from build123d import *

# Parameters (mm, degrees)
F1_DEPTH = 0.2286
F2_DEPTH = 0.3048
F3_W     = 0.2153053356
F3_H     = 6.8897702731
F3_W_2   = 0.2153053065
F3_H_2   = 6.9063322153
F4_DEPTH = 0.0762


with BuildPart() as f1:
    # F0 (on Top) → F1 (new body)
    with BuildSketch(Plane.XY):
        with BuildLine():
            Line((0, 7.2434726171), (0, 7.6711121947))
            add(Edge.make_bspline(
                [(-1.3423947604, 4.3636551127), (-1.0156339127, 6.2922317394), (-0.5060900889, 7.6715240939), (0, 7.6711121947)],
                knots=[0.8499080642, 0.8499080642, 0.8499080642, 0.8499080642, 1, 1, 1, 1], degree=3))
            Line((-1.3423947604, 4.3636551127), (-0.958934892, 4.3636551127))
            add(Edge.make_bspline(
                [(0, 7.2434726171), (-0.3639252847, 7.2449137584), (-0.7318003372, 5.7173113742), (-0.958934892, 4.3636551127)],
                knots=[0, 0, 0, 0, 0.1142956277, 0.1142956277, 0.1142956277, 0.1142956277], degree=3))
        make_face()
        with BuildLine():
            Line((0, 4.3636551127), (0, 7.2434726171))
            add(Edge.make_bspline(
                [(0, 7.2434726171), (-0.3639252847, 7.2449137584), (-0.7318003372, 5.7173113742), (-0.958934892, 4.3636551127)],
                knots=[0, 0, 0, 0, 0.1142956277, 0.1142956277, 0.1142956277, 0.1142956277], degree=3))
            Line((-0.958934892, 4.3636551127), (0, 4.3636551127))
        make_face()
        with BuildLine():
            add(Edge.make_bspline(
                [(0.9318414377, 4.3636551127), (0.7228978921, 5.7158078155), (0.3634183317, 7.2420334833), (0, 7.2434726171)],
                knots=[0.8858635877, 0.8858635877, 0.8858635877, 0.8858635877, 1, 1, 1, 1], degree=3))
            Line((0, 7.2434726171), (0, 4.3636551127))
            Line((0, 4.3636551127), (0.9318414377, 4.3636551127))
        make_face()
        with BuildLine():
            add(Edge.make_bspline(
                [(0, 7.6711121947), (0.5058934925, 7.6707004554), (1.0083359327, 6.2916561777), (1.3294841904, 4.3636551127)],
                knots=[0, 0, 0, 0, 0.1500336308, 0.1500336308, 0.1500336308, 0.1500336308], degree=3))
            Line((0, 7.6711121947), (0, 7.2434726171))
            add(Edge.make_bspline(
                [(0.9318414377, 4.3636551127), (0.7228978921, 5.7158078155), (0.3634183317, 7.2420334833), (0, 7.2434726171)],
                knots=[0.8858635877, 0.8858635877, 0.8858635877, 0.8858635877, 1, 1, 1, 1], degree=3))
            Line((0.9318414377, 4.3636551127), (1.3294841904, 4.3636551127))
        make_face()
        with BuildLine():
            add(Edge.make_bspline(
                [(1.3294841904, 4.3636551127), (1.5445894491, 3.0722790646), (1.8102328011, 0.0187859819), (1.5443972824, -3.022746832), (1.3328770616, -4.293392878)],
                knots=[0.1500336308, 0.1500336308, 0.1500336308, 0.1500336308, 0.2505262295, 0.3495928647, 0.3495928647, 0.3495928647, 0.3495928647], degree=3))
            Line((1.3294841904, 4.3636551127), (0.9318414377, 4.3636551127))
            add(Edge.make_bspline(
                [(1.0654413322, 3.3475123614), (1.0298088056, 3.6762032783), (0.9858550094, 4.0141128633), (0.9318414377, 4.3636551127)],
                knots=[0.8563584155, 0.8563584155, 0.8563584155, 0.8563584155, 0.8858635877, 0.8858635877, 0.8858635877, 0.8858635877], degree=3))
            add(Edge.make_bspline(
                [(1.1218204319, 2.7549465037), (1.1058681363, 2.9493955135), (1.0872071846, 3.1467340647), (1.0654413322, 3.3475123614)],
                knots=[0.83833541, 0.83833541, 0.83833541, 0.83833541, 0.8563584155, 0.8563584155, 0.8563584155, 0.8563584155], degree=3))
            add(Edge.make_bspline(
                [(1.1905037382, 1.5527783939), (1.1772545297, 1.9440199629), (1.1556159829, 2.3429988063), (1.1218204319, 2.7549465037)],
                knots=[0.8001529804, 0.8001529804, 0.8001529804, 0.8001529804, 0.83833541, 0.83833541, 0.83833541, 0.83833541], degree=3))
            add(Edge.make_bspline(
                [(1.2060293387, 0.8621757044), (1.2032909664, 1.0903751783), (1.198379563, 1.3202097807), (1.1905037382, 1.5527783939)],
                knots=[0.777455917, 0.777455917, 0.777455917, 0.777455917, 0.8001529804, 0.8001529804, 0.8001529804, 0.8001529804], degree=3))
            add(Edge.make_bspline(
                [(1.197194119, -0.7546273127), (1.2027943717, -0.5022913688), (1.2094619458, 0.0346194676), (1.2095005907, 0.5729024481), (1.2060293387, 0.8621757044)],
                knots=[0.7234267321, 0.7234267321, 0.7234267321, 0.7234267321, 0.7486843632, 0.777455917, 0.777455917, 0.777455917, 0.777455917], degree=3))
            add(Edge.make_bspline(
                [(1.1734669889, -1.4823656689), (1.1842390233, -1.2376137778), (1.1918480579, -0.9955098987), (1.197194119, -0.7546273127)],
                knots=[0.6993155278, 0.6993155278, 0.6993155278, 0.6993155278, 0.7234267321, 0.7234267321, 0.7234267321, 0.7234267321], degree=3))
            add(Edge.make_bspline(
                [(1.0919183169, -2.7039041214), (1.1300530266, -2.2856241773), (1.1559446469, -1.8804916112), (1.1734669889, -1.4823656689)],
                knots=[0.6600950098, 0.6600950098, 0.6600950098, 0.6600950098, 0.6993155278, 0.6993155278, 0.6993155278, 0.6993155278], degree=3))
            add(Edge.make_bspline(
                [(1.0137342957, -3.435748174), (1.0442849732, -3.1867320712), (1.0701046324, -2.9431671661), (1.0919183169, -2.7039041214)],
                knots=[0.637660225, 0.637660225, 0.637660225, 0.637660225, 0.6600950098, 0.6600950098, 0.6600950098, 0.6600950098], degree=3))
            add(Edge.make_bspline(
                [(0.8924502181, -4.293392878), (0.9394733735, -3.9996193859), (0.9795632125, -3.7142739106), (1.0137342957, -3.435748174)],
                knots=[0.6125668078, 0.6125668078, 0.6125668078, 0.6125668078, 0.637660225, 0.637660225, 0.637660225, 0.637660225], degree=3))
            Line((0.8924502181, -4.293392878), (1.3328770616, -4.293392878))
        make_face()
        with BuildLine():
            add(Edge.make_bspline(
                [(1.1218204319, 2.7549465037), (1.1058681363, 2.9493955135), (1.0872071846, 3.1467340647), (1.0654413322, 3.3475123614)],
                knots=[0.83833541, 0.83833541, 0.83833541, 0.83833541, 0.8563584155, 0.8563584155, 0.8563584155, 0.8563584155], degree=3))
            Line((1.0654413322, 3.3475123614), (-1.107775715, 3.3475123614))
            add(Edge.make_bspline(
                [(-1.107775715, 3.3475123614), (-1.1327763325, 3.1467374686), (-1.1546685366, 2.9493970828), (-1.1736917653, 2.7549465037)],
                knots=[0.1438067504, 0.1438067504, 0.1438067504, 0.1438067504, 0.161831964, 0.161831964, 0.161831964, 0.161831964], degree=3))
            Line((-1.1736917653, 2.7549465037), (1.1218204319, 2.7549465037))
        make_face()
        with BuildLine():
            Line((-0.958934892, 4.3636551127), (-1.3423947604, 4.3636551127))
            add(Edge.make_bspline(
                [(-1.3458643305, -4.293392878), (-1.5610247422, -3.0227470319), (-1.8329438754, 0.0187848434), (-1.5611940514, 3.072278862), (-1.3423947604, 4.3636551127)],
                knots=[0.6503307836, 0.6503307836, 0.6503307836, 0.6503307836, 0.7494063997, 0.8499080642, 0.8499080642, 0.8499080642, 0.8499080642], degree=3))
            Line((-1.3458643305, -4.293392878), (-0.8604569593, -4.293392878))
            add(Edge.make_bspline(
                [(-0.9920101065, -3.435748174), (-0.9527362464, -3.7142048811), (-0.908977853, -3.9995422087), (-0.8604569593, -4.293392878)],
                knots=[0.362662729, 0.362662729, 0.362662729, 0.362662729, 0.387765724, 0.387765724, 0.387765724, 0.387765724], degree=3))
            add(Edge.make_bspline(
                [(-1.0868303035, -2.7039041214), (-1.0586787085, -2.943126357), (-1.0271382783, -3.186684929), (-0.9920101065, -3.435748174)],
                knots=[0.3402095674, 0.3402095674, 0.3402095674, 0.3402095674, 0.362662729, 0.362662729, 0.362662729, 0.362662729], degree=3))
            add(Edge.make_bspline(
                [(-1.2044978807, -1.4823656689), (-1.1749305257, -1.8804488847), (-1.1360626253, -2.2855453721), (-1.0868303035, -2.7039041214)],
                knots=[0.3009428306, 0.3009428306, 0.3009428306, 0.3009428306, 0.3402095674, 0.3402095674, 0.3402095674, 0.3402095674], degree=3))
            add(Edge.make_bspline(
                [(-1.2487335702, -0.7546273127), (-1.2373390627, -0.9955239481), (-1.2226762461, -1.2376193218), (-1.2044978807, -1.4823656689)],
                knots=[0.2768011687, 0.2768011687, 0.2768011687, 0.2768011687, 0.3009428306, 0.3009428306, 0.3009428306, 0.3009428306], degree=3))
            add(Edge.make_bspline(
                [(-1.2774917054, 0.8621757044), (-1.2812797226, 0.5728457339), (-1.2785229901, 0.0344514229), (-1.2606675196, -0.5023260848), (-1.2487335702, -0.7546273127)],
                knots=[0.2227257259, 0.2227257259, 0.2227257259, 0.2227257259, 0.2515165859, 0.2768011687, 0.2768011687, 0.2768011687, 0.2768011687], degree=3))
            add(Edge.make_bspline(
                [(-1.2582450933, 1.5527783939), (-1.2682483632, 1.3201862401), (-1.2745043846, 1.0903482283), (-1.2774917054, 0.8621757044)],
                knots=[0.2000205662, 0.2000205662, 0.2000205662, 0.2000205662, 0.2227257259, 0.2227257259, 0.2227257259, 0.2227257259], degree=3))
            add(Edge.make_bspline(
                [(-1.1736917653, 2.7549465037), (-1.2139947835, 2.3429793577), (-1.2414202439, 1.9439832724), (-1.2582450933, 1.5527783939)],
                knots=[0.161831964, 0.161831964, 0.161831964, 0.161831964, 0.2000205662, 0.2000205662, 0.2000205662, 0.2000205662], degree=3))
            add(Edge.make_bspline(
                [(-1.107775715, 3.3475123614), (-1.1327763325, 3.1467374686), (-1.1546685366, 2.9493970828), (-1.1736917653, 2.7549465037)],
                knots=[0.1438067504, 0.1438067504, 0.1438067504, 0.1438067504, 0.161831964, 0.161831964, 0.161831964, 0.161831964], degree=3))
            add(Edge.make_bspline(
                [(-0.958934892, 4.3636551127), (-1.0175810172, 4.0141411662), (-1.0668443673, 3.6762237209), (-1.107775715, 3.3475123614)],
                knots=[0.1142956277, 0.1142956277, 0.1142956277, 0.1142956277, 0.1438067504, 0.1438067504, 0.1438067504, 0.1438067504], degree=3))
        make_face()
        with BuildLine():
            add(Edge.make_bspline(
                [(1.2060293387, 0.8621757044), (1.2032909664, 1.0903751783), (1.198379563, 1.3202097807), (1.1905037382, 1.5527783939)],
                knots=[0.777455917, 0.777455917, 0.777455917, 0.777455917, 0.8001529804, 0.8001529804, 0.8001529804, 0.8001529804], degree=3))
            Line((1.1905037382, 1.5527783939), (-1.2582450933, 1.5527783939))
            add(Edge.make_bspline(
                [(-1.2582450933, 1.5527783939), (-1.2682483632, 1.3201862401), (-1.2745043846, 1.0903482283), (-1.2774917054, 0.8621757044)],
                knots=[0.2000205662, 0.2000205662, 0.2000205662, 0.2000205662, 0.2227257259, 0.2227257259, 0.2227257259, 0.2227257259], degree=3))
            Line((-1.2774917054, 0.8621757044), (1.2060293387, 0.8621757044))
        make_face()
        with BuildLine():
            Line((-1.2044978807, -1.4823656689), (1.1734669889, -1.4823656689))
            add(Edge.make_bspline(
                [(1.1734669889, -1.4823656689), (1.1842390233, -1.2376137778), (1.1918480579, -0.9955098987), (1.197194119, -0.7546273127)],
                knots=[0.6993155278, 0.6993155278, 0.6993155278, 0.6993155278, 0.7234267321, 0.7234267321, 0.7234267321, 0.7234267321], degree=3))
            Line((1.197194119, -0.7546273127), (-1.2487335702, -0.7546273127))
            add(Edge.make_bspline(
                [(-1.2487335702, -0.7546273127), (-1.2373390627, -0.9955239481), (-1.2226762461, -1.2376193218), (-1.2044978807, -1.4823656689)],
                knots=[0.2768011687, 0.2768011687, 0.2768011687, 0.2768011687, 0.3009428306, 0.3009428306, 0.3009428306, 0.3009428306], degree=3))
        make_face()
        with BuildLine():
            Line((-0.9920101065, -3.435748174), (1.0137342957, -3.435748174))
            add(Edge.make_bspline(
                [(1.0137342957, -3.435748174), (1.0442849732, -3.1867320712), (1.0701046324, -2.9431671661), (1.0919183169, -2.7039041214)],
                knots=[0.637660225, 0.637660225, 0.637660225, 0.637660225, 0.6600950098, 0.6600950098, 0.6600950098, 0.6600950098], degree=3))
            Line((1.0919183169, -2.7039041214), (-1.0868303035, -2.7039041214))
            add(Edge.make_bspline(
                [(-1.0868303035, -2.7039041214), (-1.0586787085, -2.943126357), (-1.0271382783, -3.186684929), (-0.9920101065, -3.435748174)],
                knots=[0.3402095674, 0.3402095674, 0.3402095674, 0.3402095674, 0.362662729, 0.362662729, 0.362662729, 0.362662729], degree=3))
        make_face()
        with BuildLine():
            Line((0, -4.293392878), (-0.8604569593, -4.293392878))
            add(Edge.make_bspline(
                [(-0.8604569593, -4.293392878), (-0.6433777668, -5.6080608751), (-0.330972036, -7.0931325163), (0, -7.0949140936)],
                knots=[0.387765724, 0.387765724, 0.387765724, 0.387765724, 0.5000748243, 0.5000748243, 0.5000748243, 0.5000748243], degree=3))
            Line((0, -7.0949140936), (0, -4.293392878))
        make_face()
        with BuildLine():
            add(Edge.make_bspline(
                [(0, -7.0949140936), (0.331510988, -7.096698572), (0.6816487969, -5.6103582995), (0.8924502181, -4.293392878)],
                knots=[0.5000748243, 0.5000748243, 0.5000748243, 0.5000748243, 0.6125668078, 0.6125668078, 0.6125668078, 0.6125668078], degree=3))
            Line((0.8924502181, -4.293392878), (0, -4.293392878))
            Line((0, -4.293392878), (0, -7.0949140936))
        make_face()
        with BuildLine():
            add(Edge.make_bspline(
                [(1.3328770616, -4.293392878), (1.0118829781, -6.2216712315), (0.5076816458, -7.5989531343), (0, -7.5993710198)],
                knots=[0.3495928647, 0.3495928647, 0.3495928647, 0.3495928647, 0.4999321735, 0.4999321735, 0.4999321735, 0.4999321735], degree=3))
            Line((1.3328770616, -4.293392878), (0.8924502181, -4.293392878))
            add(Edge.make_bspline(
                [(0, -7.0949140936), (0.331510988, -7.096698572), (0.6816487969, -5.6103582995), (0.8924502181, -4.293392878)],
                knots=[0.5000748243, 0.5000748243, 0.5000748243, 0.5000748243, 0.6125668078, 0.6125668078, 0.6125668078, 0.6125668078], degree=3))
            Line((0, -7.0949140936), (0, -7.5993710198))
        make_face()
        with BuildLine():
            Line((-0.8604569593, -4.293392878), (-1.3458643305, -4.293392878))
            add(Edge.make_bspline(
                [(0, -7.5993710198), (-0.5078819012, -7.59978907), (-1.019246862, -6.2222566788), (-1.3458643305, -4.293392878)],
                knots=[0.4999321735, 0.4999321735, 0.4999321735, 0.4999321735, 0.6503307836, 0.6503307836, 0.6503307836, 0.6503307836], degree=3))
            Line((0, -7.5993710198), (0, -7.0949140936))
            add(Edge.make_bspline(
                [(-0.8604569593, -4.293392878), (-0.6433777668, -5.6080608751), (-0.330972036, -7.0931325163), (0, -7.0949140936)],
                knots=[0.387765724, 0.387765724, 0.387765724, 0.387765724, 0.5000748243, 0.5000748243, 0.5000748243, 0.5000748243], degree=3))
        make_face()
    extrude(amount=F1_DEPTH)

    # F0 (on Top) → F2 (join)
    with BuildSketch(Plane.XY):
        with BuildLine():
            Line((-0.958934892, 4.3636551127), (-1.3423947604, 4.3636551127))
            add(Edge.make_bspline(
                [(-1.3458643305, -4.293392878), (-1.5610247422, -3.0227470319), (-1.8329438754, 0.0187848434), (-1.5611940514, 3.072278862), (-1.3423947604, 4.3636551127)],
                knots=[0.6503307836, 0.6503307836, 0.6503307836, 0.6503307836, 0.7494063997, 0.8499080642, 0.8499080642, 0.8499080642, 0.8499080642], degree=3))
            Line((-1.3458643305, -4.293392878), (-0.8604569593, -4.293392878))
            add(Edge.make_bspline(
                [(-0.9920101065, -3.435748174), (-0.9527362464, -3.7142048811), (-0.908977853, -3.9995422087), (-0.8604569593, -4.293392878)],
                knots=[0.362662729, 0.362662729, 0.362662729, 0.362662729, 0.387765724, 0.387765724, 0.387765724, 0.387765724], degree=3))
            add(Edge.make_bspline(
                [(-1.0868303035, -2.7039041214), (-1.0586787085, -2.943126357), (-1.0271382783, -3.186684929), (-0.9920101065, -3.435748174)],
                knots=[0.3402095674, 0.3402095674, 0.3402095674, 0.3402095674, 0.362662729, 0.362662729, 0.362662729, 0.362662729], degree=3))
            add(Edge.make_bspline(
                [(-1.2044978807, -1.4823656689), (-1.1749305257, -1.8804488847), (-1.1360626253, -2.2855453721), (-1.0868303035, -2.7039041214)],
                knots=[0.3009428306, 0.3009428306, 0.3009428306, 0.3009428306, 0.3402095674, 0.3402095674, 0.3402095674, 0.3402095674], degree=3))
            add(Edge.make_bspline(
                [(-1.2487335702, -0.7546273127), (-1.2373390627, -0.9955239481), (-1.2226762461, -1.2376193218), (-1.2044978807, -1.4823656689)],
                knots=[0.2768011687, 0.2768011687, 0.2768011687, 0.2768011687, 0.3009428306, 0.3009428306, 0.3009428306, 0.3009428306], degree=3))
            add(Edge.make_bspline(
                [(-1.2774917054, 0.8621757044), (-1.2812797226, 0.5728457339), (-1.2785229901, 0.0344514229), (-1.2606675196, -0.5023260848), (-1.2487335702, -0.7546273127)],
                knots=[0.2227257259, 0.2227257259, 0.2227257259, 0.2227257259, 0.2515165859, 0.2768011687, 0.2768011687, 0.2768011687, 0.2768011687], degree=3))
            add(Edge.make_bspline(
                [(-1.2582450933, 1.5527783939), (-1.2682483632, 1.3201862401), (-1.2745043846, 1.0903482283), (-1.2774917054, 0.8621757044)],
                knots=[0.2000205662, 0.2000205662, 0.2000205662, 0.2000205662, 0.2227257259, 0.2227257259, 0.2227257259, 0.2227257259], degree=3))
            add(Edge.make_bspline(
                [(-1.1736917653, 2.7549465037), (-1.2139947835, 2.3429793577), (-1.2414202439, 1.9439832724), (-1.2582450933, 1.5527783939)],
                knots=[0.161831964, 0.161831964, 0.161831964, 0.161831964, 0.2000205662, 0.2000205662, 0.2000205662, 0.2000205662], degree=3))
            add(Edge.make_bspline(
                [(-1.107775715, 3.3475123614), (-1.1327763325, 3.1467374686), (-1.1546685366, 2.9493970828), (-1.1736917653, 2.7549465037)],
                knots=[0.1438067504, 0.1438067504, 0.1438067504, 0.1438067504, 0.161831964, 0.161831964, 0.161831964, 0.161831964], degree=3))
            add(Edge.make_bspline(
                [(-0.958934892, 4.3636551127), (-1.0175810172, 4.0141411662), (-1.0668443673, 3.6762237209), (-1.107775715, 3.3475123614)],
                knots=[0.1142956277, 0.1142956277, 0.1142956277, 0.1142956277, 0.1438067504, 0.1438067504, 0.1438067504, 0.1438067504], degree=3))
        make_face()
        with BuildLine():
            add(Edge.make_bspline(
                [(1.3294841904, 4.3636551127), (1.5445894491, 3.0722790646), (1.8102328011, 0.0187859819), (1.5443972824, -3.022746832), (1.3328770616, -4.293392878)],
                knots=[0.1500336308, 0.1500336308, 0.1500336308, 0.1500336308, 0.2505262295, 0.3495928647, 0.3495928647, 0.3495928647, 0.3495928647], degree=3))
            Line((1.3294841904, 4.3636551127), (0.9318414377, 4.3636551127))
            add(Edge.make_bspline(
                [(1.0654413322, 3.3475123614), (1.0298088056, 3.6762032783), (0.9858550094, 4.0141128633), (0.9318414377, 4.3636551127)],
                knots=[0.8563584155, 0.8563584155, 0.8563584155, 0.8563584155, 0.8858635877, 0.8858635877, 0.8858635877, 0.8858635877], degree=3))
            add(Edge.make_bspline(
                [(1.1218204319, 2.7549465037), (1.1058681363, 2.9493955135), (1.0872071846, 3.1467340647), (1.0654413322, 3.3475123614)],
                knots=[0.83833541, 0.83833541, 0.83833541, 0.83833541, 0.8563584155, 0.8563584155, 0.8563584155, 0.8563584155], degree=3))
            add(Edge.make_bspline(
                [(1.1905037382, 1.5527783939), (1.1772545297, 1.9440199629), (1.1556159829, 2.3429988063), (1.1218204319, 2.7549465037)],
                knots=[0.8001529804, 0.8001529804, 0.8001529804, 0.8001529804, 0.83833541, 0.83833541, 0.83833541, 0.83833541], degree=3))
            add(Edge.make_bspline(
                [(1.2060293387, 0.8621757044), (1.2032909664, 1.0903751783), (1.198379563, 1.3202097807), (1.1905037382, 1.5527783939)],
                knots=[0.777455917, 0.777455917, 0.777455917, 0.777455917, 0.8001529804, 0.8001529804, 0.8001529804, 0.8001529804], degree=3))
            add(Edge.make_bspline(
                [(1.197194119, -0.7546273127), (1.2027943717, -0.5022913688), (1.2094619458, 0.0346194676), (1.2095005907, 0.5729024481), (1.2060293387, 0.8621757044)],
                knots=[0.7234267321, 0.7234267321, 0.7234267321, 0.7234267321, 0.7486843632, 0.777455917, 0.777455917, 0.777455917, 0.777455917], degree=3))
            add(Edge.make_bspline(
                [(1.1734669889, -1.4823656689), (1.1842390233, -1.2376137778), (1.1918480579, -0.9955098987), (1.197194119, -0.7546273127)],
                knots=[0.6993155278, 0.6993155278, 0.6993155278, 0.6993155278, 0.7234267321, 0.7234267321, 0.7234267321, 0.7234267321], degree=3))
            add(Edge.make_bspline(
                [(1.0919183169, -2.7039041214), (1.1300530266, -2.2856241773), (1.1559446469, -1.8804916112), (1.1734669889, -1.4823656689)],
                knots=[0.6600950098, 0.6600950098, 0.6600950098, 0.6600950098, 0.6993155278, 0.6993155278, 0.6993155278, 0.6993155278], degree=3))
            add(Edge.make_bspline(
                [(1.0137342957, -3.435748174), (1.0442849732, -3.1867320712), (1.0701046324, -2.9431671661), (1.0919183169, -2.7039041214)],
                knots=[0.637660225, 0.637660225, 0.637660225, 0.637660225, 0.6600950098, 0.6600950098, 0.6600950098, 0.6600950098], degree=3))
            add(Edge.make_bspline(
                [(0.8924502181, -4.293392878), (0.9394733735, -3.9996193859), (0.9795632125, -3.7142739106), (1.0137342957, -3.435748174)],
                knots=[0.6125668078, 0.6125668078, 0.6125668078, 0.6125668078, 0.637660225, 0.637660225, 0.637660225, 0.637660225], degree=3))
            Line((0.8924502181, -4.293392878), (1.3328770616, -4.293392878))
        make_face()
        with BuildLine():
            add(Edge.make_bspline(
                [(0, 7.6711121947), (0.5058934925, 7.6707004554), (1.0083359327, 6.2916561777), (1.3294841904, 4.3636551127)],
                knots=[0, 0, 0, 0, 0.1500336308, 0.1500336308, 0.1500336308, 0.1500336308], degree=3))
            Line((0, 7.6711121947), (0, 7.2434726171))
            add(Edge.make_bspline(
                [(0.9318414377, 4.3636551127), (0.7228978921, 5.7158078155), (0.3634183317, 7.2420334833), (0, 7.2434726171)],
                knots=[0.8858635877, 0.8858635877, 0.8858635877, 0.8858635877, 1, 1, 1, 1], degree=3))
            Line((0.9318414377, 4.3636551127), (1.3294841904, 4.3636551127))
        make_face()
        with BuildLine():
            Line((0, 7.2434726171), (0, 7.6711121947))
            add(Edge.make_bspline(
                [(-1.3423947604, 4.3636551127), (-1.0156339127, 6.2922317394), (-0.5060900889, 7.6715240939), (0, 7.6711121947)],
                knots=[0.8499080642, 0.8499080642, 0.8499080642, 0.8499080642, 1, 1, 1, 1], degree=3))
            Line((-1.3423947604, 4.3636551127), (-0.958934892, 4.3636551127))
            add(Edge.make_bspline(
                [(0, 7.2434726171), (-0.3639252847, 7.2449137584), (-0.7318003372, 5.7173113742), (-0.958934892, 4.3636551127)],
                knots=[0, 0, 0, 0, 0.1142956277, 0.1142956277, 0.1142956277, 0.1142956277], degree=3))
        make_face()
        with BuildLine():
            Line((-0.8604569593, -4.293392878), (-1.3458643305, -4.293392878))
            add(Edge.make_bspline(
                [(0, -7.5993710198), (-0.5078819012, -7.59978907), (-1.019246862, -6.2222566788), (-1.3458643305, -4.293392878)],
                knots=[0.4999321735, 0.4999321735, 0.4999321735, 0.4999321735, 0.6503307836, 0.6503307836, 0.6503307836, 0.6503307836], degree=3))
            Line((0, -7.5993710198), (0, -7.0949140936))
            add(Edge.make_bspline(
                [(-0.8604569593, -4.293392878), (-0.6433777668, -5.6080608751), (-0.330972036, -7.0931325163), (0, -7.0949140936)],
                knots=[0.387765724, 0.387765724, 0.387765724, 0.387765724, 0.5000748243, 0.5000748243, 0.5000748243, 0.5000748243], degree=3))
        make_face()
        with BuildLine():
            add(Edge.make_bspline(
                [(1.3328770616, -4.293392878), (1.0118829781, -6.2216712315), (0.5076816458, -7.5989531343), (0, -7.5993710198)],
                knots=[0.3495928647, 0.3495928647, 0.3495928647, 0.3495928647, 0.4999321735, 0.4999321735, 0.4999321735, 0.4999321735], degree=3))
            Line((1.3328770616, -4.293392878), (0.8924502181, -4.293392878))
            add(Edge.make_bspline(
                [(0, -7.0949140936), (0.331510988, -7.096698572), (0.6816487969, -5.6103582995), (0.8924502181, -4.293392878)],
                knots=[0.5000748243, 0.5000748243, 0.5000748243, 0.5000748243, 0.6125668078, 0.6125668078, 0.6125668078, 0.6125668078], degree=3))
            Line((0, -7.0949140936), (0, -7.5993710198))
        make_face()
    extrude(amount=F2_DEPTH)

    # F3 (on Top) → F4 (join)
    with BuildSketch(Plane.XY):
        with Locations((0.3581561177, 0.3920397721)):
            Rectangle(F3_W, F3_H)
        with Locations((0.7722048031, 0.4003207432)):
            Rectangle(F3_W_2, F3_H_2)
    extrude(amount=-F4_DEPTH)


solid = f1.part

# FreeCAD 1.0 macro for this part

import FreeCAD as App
import Part
import Sketcher
from FreeCAD import Vector
Q = App.Units.Quantity

doc = App.newDocument("Part")
body = doc.addObject("PartDesign::Body", "Body")

# Sketch on XY plane
sketch1 = body.newObject("Sketcher::SketchObject", "Sketch")
sketch1.AttachmentSupport = (doc.getObject("XY_Plane"), [""])
sketch1.MapMode = "FlatFace"
sketch1.addGeometry(Part.BSplineCurve([Vector(-1.345864, -4.293393, 0), Vector(-1.561025, -3.022747, 0), Vector(-1.832944, 0.018785, 0), Vector(-1.561194, 3.072279, 0), Vector(-1.342395, 4.363655, 0)], [4, 1, 4], [0.650330784, 0.7494064, 0.849908064], False, 3, [1, 1, 1, 1, 1], False), False)
sketch1.addGeometry(Part.BSplineCurve([Vector(0, -7.599371, 0), Vector(-0.507882, -7.599789, 0), Vector(-1.019247, -6.222257, 0), Vector(-1.345864, -4.293393, 0)], [4, 4], [0.499932174, 0.650330784], False, 3, [1, 1, 1, 1], False), False)
sketch1.addGeometry(Part.BSplineCurve([Vector(1.332877, -4.293393, 0), Vector(1.011883, -6.221671, 0), Vector(0.507682, -7.598953, 0), Vector(0, -7.599371, 0)], [4, 4], [0.349592865, 0.499932174], False, 3, [1, 1, 1, 1], False), False)
sketch1.addGeometry(Part.BSplineCurve([Vector(1.329484, 4.363655, 0), Vector(1.544589, 3.072279, 0), Vector(1.810233, 0.018786, 0), Vector(1.544397, -3.022747, 0), Vector(1.332877, -4.293393, 0)], [4, 1, 4], [0.150033631, 0.250526229, 0.349592865], False, 3, [1, 1, 1, 1, 1], False), False)
sketch1.addGeometry(Part.BSplineCurve([Vector(0, 7.671112, 0), Vector(0.505893, 7.6707, 0), Vector(1.008336, 6.291656, 0), Vector(1.329484, 4.363655, 0)], [4, 4], [0, 0.150033631], False, 3, [1, 1, 1, 1], False), False)
sketch1.addGeometry(Part.BSplineCurve([Vector(-1.342395, 4.363655, 0), Vector(-1.015634, 6.292232, 0), Vector(-0.50609, 7.671524, 0), Vector(0, 7.671112, 0)], [4, 4], [0.849908064, 1], False, 3, [1, 1, 1, 1], False), False)
sketch1.addGeometry(Part.BSplineCurve([Vector(-0.99201, -3.435748, 0), Vector(-0.952736, -3.714205, 0), Vector(-0.908978, -3.999542, 0), Vector(-0.860457, -4.293393, 0)], [4, 4], [0.362662729, 0.387765724], False, 3, [1, 1, 1, 1], False), False)
sketch1.addGeometry(Part.LineSegment(Vector(-0.99201, -3.435748, 0), Vector(1.013734, -3.435748, 0)), False)
sketch1.addGeometry(Part.BSplineCurve([Vector(0.89245, -4.293393, 0), Vector(0.939473, -3.999619, 0), Vector(0.979563, -3.714274, 0), Vector(1.013734, -3.435748, 0)], [4, 4], [0.612566808, 0.637660225], False, 3, [1, 1, 1, 1], False), False)
sketch1.addGeometry(Part.LineSegment(Vector(0.89245, -4.293393, 0), Vector(-0.860457, -4.293393, 0)), False)
sketch1.addGeometry(Part.BSplineCurve([Vector(-1.204498, -1.482366, 0), Vector(-1.174931, -1.880449, 0), Vector(-1.136063, -2.285545, 0), Vector(-1.08683, -2.703904, 0)], [4, 4], [0.300942831, 0.340209567], False, 3, [1, 1, 1, 1], False), False)
sketch1.addGeometry(Part.LineSegment(Vector(-1.204498, -1.482366, 0), Vector(1.173467, -1.482366, 0)), False)
sketch1.addGeometry(Part.BSplineCurve([Vector(1.091918, -2.703904, 0), Vector(1.130053, -2.285624, 0), Vector(1.155945, -1.880492, 0), Vector(1.173467, -1.482366, 0)], [4, 4], [0.66009501, 0.699315528], False, 3, [1, 1, 1, 1], False), False)
sketch1.addGeometry(Part.LineSegment(Vector(1.091918, -2.703904, 0), Vector(-1.08683, -2.703904, 0)), False)
sketch1.addGeometry(Part.BSplineCurve([Vector(-1.277492, 0.862176, 0), Vector(-1.28128, 0.572846, 0), Vector(-1.278523, 0.034451, 0), Vector(-1.260668, -0.502326, 0), Vector(-1.248734, -0.754627, 0)], [4, 1, 4], [0.222725726, 0.251516586, 0.276801169], False, 3, [1, 1, 1, 1, 1], False), False)
sketch1.addGeometry(Part.LineSegment(Vector(-1.277492, 0.862176, 0), Vector(1.206029, 0.862176, 0)), False)
sketch1.addGeometry(Part.BSplineCurve([Vector(1.197194, -0.754627, 0), Vector(1.202794, -0.502291, 0), Vector(1.209462, 0.034619, 0), Vector(1.209501, 0.572902, 0), Vector(1.206029, 0.862176, 0)], [4, 1, 4], [0.723426732, 0.748684363, 0.777455917], False, 3, [1, 1, 1, 1, 1], False), False)
sketch1.addGeometry(Part.LineSegment(Vector(1.197194, -0.754627, 0), Vector(-1.248734, -0.754627, 0)), False)
sketch1.addGeometry(Part.BSplineCurve([Vector(-1.173692, 2.754947, 0), Vector(-1.213995, 2.342979, 0), Vector(-1.24142, 1.943983, 0), Vector(-1.258245, 1.552778, 0)], [4, 4], [0.161831964, 0.200020566], False, 3, [1, 1, 1, 1], False), False)
sketch1.addGeometry(Part.LineSegment(Vector(-1.173692, 2.754947, 0), Vector(1.12182, 2.754947, 0)), False)
sketch1.addGeometry(Part.BSplineCurve([Vector(1.190504, 1.552778, 0), Vector(1.177255, 1.94402, 0), Vector(1.155616, 2.342999, 0), Vector(1.12182, 2.754947, 0)], [4, 4], [0.80015298, 0.83833541], False, 3, [1, 1, 1, 1], False), False)
sketch1.addGeometry(Part.LineSegment(Vector(1.190504, 1.552778, 0), Vector(-1.258245, 1.552778, 0)), False)
sketch1.addGeometry(Part.LineSegment(Vector(-0.958935, 4.363655, 0), Vector(0.931841, 4.363655, 0)), False)
sketch1.addGeometry(Part.BSplineCurve([Vector(1.065441, 3.347512, 0), Vector(1.029809, 3.676203, 0), Vector(0.985855, 4.014113, 0), Vector(0.931841, 4.363655, 0)], [4, 4], [0.856358416, 0.885863588], False, 3, [1, 1, 1, 1], False), False)
sketch1.addGeometry(Part.LineSegment(Vector(1.065441, 3.347512, 0), Vector(-1.107776, 3.347512, 0)), False)
sketch1.addGeometry(Part.BSplineCurve([Vector(-0.958935, 4.363655, 0), Vector(-1.017581, 4.014141, 0), Vector(-1.066844, 3.676224, 0), Vector(-1.107776, 3.347512, 0)], [4, 4], [0.114295628, 0.14380675], False, 3, [1, 1, 1, 1], False), False)
sketch1.addConstraint(Sketcher.Constraint("Block", 0))
sketch1.addConstraint(Sketcher.Constraint("Block", 1))
sketch1.addConstraint(Sketcher.Constraint("Block", 2))
sketch1.addConstraint(Sketcher.Constraint("Block", 3))
sketch1.addConstraint(Sketcher.Constraint("Block", 4))
sketch1.addConstraint(Sketcher.Constraint("Block", 5))
sketch1.addConstraint(Sketcher.Constraint("Block", 6))
sketch1.addConstraint(Sketcher.Constraint("Block", 8))
sketch1.addConstraint(Sketcher.Constraint("Block", 10))
sketch1.addConstraint(Sketcher.Constraint("Block", 12))
sketch1.addConstraint(Sketcher.Constraint("Block", 14))
sketch1.addConstraint(Sketcher.Constraint("Block", 16))
sketch1.addConstraint(Sketcher.Constraint("Block", 18))
sketch1.addConstraint(Sketcher.Constraint("Block", 20))
sketch1.addConstraint(Sketcher.Constraint("Block", 23))
sketch1.addConstraint(Sketcher.Constraint("Block", 25))
sketch1.addConstraint(Sketcher.Constraint("Coincident", 6, 1, 7, 1))
sketch1.addConstraint(Sketcher.Constraint("Coincident", 7, 2, 8, 2))
sketch1.addConstraint(Sketcher.Constraint("Coincident", 8, 1, 9, 1))
sketch1.addConstraint(Sketcher.Constraint("Coincident", 9, 2, 6, 2))
sketch1.addConstraint(Sketcher.Constraint("Coincident", 10, 1, 11, 1))
sketch1.addConstraint(Sketcher.Constraint("Coincident", 11, 2, 12, 2))
sketch1.addConstraint(Sketcher.Constraint("Coincident", 12, 1, 13, 1))
sketch1.addConstraint(Sketcher.Constraint("Coincident", 13, 2, 10, 2))
sketch1.addConstraint(Sketcher.Constraint("Coincident", 14, 1, 15, 1))
sketch1.addConstraint(Sketcher.Constraint("Coincident", 15, 2, 16, 2))
sketch1.addConstraint(Sketcher.Constraint("Coincident", 16, 1, 17, 1))
sketch1.addConstraint(Sketcher.Constraint("Coincident", 17, 2, 14, 2))
sketch1.addConstraint(Sketcher.Constraint("Coincident", 18, 1, 19, 1))
sketch1.addConstraint(Sketcher.Constraint("Coincident", 19, 2, 20, 2))
sketch1.addConstraint(Sketcher.Constraint("Coincident", 20, 1, 21, 1))
sketch1.addConstraint(Sketcher.Constraint("Coincident", 21, 2, 18, 2))
sketch1.addConstraint(Sketcher.Constraint("Coincident", 22, 2, 23, 2))
sketch1.addConstraint(Sketcher.Constraint("Coincident", 23, 1, 24, 1))
sketch1.addConstraint(Sketcher.Constraint("Coincident", 24, 2, 25, 2))
sketch1.addConstraint(Sketcher.Constraint("Coincident", 25, 1, 22, 1))
pad1 = body.newObject("PartDesign::Pad", "Pad")
pad1.Profile = sketch1
pad1.Length = Q("0.009 in")

# Sketch on XY plane
sketch2 = body.newObject("Sketcher::SketchObject", "Sketch001")
sketch2.AttachmentSupport = (doc.getObject("XY_Plane"), [""])
sketch2.MapMode = "FlatFace"
sketch2.addGeometry(Part.BSplineCurve([Vector(-1.345864, -4.293393, 0), Vector(-1.561025, -3.022747, 0), Vector(-1.832944, 0.018785, 0), Vector(-1.561194, 3.072279, 0), Vector(-1.342395, 4.363655, 0)], [4, 1, 4], [0.650330784, 0.7494064, 0.849908064], False, 3, [1, 1, 1, 1, 1], False), False)
sketch2.addGeometry(Part.BSplineCurve([Vector(0, -7.599371, 0), Vector(-0.507882, -7.599789, 0), Vector(-1.019247, -6.222257, 0), Vector(-1.345864, -4.293393, 0)], [4, 4], [0.499932174, 0.650330784], False, 3, [1, 1, 1, 1], False), False)
sketch2.addGeometry(Part.BSplineCurve([Vector(1.332877, -4.293393, 0), Vector(1.011883, -6.221671, 0), Vector(0.507682, -7.598953, 0), Vector(0, -7.599371, 0)], [4, 4], [0.349592865, 0.499932174], False, 3, [1, 1, 1, 1], False), False)
sketch2.addGeometry(Part.BSplineCurve([Vector(1.329484, 4.363655, 0), Vector(1.544589, 3.072279, 0), Vector(1.810233, 0.018786, 0), Vector(1.544397, -3.022747, 0), Vector(1.332877, -4.293393, 0)], [4, 1, 4], [0.150033631, 0.250526229, 0.349592865], False, 3, [1, 1, 1, 1, 1], False), False)
sketch2.addGeometry(Part.BSplineCurve([Vector(0, 7.671112, 0), Vector(0.505893, 7.6707, 0), Vector(1.008336, 6.291656, 0), Vector(1.329484, 4.363655, 0)], [4, 4], [0, 0.150033631], False, 3, [1, 1, 1, 1], False), False)
sketch2.addGeometry(Part.BSplineCurve([Vector(-1.342395, 4.363655, 0), Vector(-1.015634, 6.292232, 0), Vector(-0.50609, 7.671524, 0), Vector(0, 7.671112, 0)], [4, 4], [0.849908064, 1], False, 3, [1, 1, 1, 1], False), False)
sketch2.addGeometry(Part.BSplineCurve([Vector(-0.860457, -4.293393, 0), Vector(-0.643378, -5.608061, 0), Vector(-0.330972, -7.093133, 0), Vector(0, -7.094914, 0)], [4, 4], [0.387765724, 0.500074824], False, 3, [1, 1, 1, 1], False), False)
sketch2.addGeometry(Part.BSplineCurve([Vector(-0.99201, -3.435748, 0), Vector(-0.952736, -3.714205, 0), Vector(-0.908978, -3.999542, 0), Vector(-0.860457, -4.293393, 0)], [4, 4], [0.362662729, 0.387765724], False, 3, [1, 1, 1, 1], False), False)
sketch2.addGeometry(Part.BSplineCurve([Vector(-1.08683, -2.703904, 0), Vector(-1.058679, -2.943126, 0), Vector(-1.027138, -3.186685, 0), Vector(-0.99201, -3.435748, 0)], [4, 4], [0.340209567, 0.362662729], False, 3, [1, 1, 1, 1], False), False)
sketch2.addGeometry(Part.BSplineCurve([Vector(-1.204498, -1.482366, 0), Vector(-1.174931, -1.880449, 0), Vector(-1.136063, -2.285545, 0), Vector(-1.08683, -2.703904, 0)], [4, 4], [0.300942831, 0.340209567], False, 3, [1, 1, 1, 1], False), False)
sketch2.addGeometry(Part.BSplineCurve([Vector(-1.248734, -0.754627, 0), Vector(-1.237339, -0.995524, 0), Vector(-1.222676, -1.237619, 0), Vector(-1.204498, -1.482366, 0)], [4, 4], [0.276801169, 0.300942831], False, 3, [1, 1, 1, 1], False), False)
sketch2.addGeometry(Part.BSplineCurve([Vector(-1.277492, 0.862176, 0), Vector(-1.28128, 0.572846, 0), Vector(-1.278523, 0.034451, 0), Vector(-1.260668, -0.502326, 0), Vector(-1.248734, -0.754627, 0)], [4, 1, 4], [0.222725726, 0.251516586, 0.276801169], False, 3, [1, 1, 1, 1, 1], False), False)
sketch2.addGeometry(Part.BSplineCurve([Vector(-1.258245, 1.552778, 0), Vector(-1.268248, 1.320186, 0), Vector(-1.274504, 1.090348, 0), Vector(-1.277492, 0.862176, 0)], [4, 4], [0.200020566, 0.222725726], False, 3, [1, 1, 1, 1], False), False)
sketch2.addGeometry(Part.BSplineCurve([Vector(-1.173692, 2.754947, 0), Vector(-1.213995, 2.342979, 0), Vector(-1.24142, 1.943983, 0), Vector(-1.258245, 1.552778, 0)], [4, 4], [0.161831964, 0.200020566], False, 3, [1, 1, 1, 1], False), False)
sketch2.addGeometry(Part.BSplineCurve([Vector(-1.107776, 3.347512, 0), Vector(-1.132776, 3.146737, 0), Vector(-1.154669, 2.949397, 0), Vector(-1.173692, 2.754947, 0)], [4, 4], [0.14380675, 0.161831964], False, 3, [1, 1, 1, 1], False), False)
sketch2.addGeometry(Part.BSplineCurve([Vector(-0.958935, 4.363655, 0), Vector(-1.017581, 4.014141, 0), Vector(-1.066844, 3.676224, 0), Vector(-1.107776, 3.347512, 0)], [4, 4], [0.114295628, 0.14380675], False, 3, [1, 1, 1, 1], False), False)
sketch2.addGeometry(Part.BSplineCurve([Vector(0, 7.243473, 0), Vector(-0.363925, 7.244914, 0), Vector(-0.7318, 5.717311, 0), Vector(-0.958935, 4.363655, 0)], [4, 4], [0, 0.114295628], False, 3, [1, 1, 1, 1], False), False)
sketch2.addGeometry(Part.BSplineCurve([Vector(0.931841, 4.363655, 0), Vector(0.722898, 5.715808, 0), Vector(0.363418, 7.242033, 0), Vector(0, 7.243473, 0)], [4, 4], [0.885863588, 1], False, 3, [1, 1, 1, 1], False), False)
sketch2.addGeometry(Part.BSplineCurve([Vector(1.065441, 3.347512, 0), Vector(1.029809, 3.676203, 0), Vector(0.985855, 4.014113, 0), Vector(0.931841, 4.363655, 0)], [4, 4], [0.856358416, 0.885863588], False, 3, [1, 1, 1, 1], False), False)
sketch2.addGeometry(Part.BSplineCurve([Vector(1.12182, 2.754947, 0), Vector(1.105868, 2.949396, 0), Vector(1.087207, 3.146734, 0), Vector(1.065441, 3.347512, 0)], [4, 4], [0.83833541, 0.856358416], False, 3, [1, 1, 1, 1], False), False)
sketch2.addGeometry(Part.BSplineCurve([Vector(1.190504, 1.552778, 0), Vector(1.177255, 1.94402, 0), Vector(1.155616, 2.342999, 0), Vector(1.12182, 2.754947, 0)], [4, 4], [0.80015298, 0.83833541], False, 3, [1, 1, 1, 1], False), False)
sketch2.addGeometry(Part.BSplineCurve([Vector(1.206029, 0.862176, 0), Vector(1.203291, 1.090375, 0), Vector(1.19838, 1.32021, 0), Vector(1.190504, 1.552778, 0)], [4, 4], [0.777455917, 0.80015298], False, 3, [1, 1, 1, 1], False), False)
sketch2.addGeometry(Part.BSplineCurve([Vector(1.197194, -0.754627, 0), Vector(1.202794, -0.502291, 0), Vector(1.209462, 0.034619, 0), Vector(1.209501, 0.572902, 0), Vector(1.206029, 0.862176, 0)], [4, 1, 4], [0.723426732, 0.748684363, 0.777455917], False, 3, [1, 1, 1, 1, 1], False), False)
sketch2.addGeometry(Part.BSplineCurve([Vector(1.173467, -1.482366, 0), Vector(1.184239, -1.237614, 0), Vector(1.191848, -0.99551, 0), Vector(1.197194, -0.754627, 0)], [4, 4], [0.699315528, 0.723426732], False, 3, [1, 1, 1, 1], False), False)
sketch2.addGeometry(Part.BSplineCurve([Vector(1.091918, -2.703904, 0), Vector(1.130053, -2.285624, 0), Vector(1.155945, -1.880492, 0), Vector(1.173467, -1.482366, 0)], [4, 4], [0.66009501, 0.699315528], False, 3, [1, 1, 1, 1], False), False)
sketch2.addGeometry(Part.BSplineCurve([Vector(1.013734, -3.435748, 0), Vector(1.044285, -3.186732, 0), Vector(1.070105, -2.943167, 0), Vector(1.091918, -2.703904, 0)], [4, 4], [0.637660225, 0.66009501], False, 3, [1, 1, 1, 1], False), False)
sketch2.addGeometry(Part.BSplineCurve([Vector(0.89245, -4.293393, 0), Vector(0.939473, -3.999619, 0), Vector(0.979563, -3.714274, 0), Vector(1.013734, -3.435748, 0)], [4, 4], [0.612566808, 0.637660225], False, 3, [1, 1, 1, 1], False), False)
sketch2.addGeometry(Part.BSplineCurve([Vector(0, -7.094914, 0), Vector(0.331511, -7.096699, 0), Vector(0.681649, -5.610358, 0), Vector(0.89245, -4.293393, 0)], [4, 4], [0.500074824, 0.612566808], False, 3, [1, 1, 1, 1], False), False)
sketch2.addConstraint(Sketcher.Constraint("Block", 0))
sketch2.addConstraint(Sketcher.Constraint("Block", 1))
sketch2.addConstraint(Sketcher.Constraint("Block", 2))
sketch2.addConstraint(Sketcher.Constraint("Block", 3))
sketch2.addConstraint(Sketcher.Constraint("Block", 4))
sketch2.addConstraint(Sketcher.Constraint("Block", 5))
sketch2.addConstraint(Sketcher.Constraint("Block", 6))
sketch2.addConstraint(Sketcher.Constraint("Block", 7))
sketch2.addConstraint(Sketcher.Constraint("Block", 8))
sketch2.addConstraint(Sketcher.Constraint("Block", 9))
sketch2.addConstraint(Sketcher.Constraint("Block", 10))
sketch2.addConstraint(Sketcher.Constraint("Block", 11))
sketch2.addConstraint(Sketcher.Constraint("Block", 12))
sketch2.addConstraint(Sketcher.Constraint("Block", 13))
sketch2.addConstraint(Sketcher.Constraint("Block", 14))
sketch2.addConstraint(Sketcher.Constraint("Block", 15))
sketch2.addConstraint(Sketcher.Constraint("Block", 16))
sketch2.addConstraint(Sketcher.Constraint("Block", 17))
sketch2.addConstraint(Sketcher.Constraint("Block", 18))
sketch2.addConstraint(Sketcher.Constraint("Block", 19))
sketch2.addConstraint(Sketcher.Constraint("Block", 20))
sketch2.addConstraint(Sketcher.Constraint("Block", 21))
sketch2.addConstraint(Sketcher.Constraint("Block", 22))
sketch2.addConstraint(Sketcher.Constraint("Block", 23))
sketch2.addConstraint(Sketcher.Constraint("Block", 24))
sketch2.addConstraint(Sketcher.Constraint("Block", 25))
sketch2.addConstraint(Sketcher.Constraint("Block", 26))
sketch2.addConstraint(Sketcher.Constraint("Block", 27))
pad2 = body.newObject("PartDesign::Pad", "Pad001")
pad2.Profile = sketch2
pad2.Length = Q("0.012 in")

# Sketch on XY plane
sketch3 = body.newObject("Sketcher::SketchObject", "Sketch002")
sketch3.AttachmentSupport = (doc.getObject("XY_Plane"), [""])
sketch3.MapMode = "FlatFace"
sketch3.addGeometry(Part.LineSegment(Vector(0.25, 3.84, 0), Vector(0.25, -3.05, 0)), False)
sketch3.addGeometry(Part.LineSegment(Vector(0.25, -3.05, 0), Vector(0.47, -3.05, 0)), False)
sketch3.addGeometry(Part.LineSegment(Vector(0.47, -3.05, 0), Vector(0.47, 3.84, 0)), False)
sketch3.addGeometry(Part.LineSegment(Vector(0.47, 3.84, 0), Vector(0.25, 3.84, 0)), False)
sketch3.addGeometry(Part.LineSegment(Vector(0.66, 3.85, 0), Vector(0.66, -3.05, 0)), False)
sketch3.addGeometry(Part.LineSegment(Vector(0.66, -3.05, 0), Vector(0.88, -3.05, 0)), False)
sketch3.addGeometry(Part.LineSegment(Vector(0.88, -3.05, 0), Vector(0.88, 3.85, 0)), False)
sketch3.addGeometry(Part.LineSegment(Vector(0.88, 3.85, 0), Vector(0.66, 3.85, 0)), False)
sketch3.addConstraint(Sketcher.Constraint("Coincident", 0, 2, 1, 1))
sketch3.addConstraint(Sketcher.Constraint("Coincident", 1, 2, 2, 1))
sketch3.addConstraint(Sketcher.Constraint("Coincident", 2, 2, 3, 1))
sketch3.addConstraint(Sketcher.Constraint("Coincident", 3, 2, 0, 1))
sketch3.addConstraint(Sketcher.Constraint("Coincident", 4, 2, 5, 1))
sketch3.addConstraint(Sketcher.Constraint("Coincident", 5, 2, 6, 1))
sketch3.addConstraint(Sketcher.Constraint("Coincident", 6, 2, 7, 1))
sketch3.addConstraint(Sketcher.Constraint("Coincident", 7, 2, 4, 1))
sketch3.addConstraint(Sketcher.Constraint("Vertical", 0))
sketch3.addConstraint(Sketcher.Constraint("Horizontal", 1))
sketch3.addConstraint(Sketcher.Constraint("Vertical", 2))
sketch3.addConstraint(Sketcher.Constraint("Horizontal", 3))
sketch3.addConstraint(Sketcher.Constraint("Vertical", 4))
sketch3.addConstraint(Sketcher.Constraint("Horizontal", 5))
sketch3.addConstraint(Sketcher.Constraint("Vertical", 6))
sketch3.addConstraint(Sketcher.Constraint("Horizontal", 7))
sketch3.addConstraint(Sketcher.Constraint("Horizontal", 1, 2, 4, 2))
sketch3.addConstraint(Sketcher.Constraint("Equal", 3, 5))
sketch3.addConstraint(Sketcher.Constraint("DistanceY", 0, 2, 0, 1, 6.88977))
sketch3.addConstraint(Sketcher.Constraint("DistanceX", 1, 1, 1, 2, 0.215305))
sketch3.addConstraint(Sketcher.Constraint("DistanceY", 4, 2, 4, 1, 6.906332))
sketch3.addConstraint(Sketcher.Constraint("DistanceX", -1, 1, 1, 2, 0.465809))
sketch3.addConstraint(Sketcher.Constraint("DistanceX", 0, 2, 4, 2, 0.414049))
sketch3.addConstraint(Sketcher.Constraint("DistanceY", 0, 2, -1, 1, 3.052845))
pad3 = body.newObject("PartDesign::Pad", "Pad002")
pad3.Profile = sketch3
pad3.Length = Q("0.003 in")
pad3.Reversed = True

doc.recompute()
